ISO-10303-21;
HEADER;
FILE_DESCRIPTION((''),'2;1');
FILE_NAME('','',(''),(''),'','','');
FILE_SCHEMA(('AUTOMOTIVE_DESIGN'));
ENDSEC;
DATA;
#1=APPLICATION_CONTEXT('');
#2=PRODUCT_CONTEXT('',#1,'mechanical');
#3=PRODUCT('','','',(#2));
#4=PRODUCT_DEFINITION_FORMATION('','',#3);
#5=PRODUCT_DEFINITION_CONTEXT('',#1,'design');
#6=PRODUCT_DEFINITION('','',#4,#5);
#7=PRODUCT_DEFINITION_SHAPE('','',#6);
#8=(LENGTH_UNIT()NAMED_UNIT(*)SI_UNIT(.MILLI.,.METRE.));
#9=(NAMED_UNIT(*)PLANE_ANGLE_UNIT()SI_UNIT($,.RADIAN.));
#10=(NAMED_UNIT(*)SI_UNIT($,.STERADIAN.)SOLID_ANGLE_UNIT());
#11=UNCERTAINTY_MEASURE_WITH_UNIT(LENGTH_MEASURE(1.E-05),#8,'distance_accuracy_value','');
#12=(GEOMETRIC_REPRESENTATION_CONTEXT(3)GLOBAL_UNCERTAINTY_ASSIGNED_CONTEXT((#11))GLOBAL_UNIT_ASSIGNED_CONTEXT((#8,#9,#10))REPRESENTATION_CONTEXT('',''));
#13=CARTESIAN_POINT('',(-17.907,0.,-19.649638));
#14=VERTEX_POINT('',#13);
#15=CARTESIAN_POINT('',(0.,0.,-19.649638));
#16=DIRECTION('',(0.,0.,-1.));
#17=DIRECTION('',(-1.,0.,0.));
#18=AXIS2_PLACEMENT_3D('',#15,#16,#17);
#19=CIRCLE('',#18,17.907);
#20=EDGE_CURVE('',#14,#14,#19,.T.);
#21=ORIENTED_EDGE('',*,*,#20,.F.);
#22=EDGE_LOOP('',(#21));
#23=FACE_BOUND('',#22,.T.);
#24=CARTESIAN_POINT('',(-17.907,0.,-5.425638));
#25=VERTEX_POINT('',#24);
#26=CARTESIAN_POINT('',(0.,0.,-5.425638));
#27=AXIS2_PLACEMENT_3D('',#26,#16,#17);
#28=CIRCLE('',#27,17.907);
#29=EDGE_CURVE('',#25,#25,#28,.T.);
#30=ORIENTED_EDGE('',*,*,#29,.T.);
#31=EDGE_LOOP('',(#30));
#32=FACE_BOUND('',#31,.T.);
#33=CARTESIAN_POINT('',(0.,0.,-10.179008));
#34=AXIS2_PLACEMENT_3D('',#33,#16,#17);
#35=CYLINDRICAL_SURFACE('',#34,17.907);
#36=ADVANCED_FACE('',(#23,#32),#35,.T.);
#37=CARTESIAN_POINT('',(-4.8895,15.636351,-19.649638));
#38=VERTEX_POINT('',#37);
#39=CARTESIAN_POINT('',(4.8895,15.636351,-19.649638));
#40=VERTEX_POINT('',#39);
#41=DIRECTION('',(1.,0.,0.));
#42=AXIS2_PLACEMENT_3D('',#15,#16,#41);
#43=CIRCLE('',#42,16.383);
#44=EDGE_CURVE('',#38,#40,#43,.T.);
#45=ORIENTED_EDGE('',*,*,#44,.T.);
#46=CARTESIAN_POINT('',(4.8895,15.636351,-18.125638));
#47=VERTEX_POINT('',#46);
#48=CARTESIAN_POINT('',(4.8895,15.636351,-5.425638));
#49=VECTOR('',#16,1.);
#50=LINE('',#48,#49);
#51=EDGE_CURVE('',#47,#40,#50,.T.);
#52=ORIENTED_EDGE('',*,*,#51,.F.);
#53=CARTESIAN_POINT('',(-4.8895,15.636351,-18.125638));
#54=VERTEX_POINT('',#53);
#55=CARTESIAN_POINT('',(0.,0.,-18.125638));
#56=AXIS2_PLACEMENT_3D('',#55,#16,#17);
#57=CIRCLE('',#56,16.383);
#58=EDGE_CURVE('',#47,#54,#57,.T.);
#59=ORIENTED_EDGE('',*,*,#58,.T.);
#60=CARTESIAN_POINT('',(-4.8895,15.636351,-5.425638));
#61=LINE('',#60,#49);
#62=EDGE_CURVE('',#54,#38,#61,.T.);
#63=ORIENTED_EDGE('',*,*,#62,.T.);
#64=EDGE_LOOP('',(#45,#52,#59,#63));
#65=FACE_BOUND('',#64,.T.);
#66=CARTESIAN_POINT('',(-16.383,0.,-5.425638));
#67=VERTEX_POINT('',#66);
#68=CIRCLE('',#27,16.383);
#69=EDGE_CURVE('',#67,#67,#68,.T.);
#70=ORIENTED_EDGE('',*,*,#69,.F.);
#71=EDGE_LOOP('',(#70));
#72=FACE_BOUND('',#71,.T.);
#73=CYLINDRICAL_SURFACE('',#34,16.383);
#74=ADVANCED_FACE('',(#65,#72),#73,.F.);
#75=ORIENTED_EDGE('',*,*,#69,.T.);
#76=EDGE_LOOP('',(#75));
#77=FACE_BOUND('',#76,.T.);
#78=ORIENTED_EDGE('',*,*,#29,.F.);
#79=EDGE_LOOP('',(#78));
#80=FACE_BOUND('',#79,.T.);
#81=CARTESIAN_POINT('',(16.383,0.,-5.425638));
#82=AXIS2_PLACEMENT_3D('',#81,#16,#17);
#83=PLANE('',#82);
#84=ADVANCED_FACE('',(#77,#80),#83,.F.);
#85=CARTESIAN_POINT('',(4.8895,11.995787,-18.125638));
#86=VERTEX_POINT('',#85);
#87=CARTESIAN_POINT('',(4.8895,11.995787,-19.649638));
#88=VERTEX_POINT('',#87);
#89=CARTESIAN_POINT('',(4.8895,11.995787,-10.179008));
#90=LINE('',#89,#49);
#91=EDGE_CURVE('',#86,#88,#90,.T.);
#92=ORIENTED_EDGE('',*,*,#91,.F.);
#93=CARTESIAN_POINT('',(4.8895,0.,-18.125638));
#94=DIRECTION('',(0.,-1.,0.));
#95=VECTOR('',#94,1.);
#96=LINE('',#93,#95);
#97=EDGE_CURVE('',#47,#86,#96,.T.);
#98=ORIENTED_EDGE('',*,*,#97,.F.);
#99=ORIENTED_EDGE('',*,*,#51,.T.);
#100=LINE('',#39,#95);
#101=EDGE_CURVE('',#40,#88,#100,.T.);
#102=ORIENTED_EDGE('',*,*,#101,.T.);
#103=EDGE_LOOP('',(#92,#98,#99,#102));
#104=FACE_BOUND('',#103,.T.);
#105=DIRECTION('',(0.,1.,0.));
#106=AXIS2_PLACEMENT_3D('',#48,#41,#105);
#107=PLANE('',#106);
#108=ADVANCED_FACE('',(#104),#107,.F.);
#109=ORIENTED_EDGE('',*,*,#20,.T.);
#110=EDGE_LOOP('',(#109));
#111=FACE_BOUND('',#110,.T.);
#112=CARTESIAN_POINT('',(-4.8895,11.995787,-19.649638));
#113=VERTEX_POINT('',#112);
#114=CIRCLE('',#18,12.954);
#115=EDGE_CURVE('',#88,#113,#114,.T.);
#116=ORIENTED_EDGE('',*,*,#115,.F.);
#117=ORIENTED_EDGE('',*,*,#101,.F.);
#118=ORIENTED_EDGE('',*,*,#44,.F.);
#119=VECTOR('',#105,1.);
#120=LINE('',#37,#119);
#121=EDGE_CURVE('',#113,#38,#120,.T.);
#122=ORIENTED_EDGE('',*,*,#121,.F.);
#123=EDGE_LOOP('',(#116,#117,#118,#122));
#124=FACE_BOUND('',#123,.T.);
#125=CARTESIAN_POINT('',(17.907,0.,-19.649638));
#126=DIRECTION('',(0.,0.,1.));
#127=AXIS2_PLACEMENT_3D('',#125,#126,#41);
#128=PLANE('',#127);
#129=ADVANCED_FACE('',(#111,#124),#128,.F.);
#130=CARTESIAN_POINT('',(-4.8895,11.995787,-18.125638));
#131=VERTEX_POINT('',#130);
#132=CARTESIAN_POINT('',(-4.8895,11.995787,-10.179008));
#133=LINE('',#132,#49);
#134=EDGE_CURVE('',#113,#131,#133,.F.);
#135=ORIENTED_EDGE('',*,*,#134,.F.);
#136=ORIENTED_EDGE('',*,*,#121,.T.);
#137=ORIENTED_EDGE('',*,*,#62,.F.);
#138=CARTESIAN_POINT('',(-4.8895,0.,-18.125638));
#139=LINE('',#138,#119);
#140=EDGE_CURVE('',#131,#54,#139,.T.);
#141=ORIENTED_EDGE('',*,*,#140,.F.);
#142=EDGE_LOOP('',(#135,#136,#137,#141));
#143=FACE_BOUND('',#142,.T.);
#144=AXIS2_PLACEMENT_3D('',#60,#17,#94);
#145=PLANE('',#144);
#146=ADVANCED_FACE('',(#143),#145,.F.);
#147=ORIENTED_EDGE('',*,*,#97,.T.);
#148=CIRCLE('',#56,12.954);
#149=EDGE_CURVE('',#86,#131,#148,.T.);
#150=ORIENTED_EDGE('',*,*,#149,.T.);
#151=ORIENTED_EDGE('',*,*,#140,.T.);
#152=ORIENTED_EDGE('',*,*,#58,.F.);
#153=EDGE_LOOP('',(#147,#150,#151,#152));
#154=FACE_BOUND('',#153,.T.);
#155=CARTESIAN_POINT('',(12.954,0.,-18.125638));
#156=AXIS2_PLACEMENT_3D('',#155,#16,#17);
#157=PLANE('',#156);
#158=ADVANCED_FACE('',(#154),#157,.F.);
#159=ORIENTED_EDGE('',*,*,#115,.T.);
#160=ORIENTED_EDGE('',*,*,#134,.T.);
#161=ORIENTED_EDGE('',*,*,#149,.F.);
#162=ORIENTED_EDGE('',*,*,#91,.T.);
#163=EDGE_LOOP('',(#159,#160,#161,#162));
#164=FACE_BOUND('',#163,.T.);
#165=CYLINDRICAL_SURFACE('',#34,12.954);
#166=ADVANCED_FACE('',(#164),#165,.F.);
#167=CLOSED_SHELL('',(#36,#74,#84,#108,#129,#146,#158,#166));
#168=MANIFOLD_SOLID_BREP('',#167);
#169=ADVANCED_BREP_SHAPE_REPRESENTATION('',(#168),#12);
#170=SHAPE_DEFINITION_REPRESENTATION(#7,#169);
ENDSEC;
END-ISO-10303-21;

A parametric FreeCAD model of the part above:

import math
import FreeCAD as App
import Part
import Sketcher

V = App.Vector
Q = App.Units.Quantity

doc = App.newDocument("Part")
body = doc.addObject("PartDesign::Body", "Body")

sketch1 = doc.addObject("Sketcher::SketchObject", "Sketch")
body.addObject(sketch1)
sketch1.AttachmentSupport = (doc.XZ_Plane, [""])
sketch1.MapMode = "FlatFace"
sketch1.addGeometry([
    Part.LineSegment(V(16.4, -5.4, 0), V(17.9, -5.4, 0)),
    Part.LineSegment(V(17.9, -5.4, 0), V(17.9, -19.6, 0)),
    Part.LineSegment(V(17.9, -19.6, 0), V(13, -19.6, 0)),
    Part.LineSegment(V(13, -19.6, 0), V(13, -18.1, 0)),
    Part.LineSegment(V(13, -18.1, 0), V(16.4, -18.1, 0)),
    Part.LineSegment(V(16.4, -18.1, 0), V(16.4, -5.4, 0)),
], False)
sketch1.addConstraint([
    Sketcher.Constraint("Coincident", 0, 2, 1, 1),
    Sketcher.Constraint("Coincident", 1, 2, 2, 1),
    Sketcher.Constraint("Coincident", 2, 2, 3, 1),
    Sketcher.Constraint("Coincident", 3, 2, 4, 1),
    Sketcher.Constraint("Coincident", 4, 2, 5, 1),
    Sketcher.Constraint("Coincident", 5, 2, 0, 1),
    Sketcher.Constraint("Horizontal", 0),
    Sketcher.Constraint("Vertical", 1),
    Sketcher.Constraint("Horizontal", 2),
    Sketcher.Constraint("Vertical", 3),
    Sketcher.Constraint("Horizontal", 4),
    Sketcher.Constraint("Vertical", 5),
    Sketcher.Constraint("Equal", 0, 3),
    Sketcher.Constraint("DistanceY", 5, 1, 5, 2, Q("0.5 in")),
    Sketcher.Constraint("DistanceX", 0, 1, 0, 2, Q("0.06 in")),
    Sketcher.Constraint("DistanceX", 2, 2, 2, 1, Q("0.195 in")),
    Sketcher.Constraint("DistanceX", -1, 1, 2, 2, Q("0.51 in")),
    Sketcher.Constraint("DistanceY", 0, 2, -1, 1, Q("5.425638 mm")),
])
revolution = doc.addObject("PartDesign::Revolution", "Revolution")
body.addObject(revolution)
revolution.Profile = sketch1
revolution.ReferenceAxis = (sketch1, ["V_Axis"])
revolution.Angle = 360

sketch2 = doc.addObject("Sketcher::SketchObject", "Sketch001")
body.addObject(sketch2)
sketch2.AttachmentSupport = (doc.XY_Plane, [""])
sketch2.MapMode = "FlatFace"
sketch2.AttachmentOffset = App.Placement(V(0, 0, -19.649638), App.Rotation())
sketch2.addGeometry([
    Part.LineSegment(V(5, 16, 0), V(5, 11, 0)),
    Part.LineSegment(V(5, 11, 0), V(-5, 11, 0)),
    Part.LineSegment(V(-5, 11, 0), V(-5, 16, 0)),
    Part.ArcOfCircle(Part.Circle(V(0, 0, 0), V(0, 0, 1), 16), math.radians(73), math.radians(107)),
], False)
sketch2.addConstraint([
    Sketcher.Constraint("Coincident", 0, 2, 1, 1),
    Sketcher.Constraint("Coincident", 1, 2, 2, 1),
    Sketcher.Constraint("Coincident", 2, 2, 3, 2),
    Sketcher.Constraint("Coincident", 3, 1, 0, 1),
    Sketcher.Constraint("Vertical", 0),
    Sketcher.Constraint("Horizontal", 1),
    Sketcher.Constraint("Vertical", 2),
    Sketcher.Constraint("Coincident", 3, 3, -1, 1),
    Sketcher.Constraint("Horizontal", 2, 2, 3, 1),
    Sketcher.Constraint("DistanceY", 0, 2, 0, 1, Q("0.2 in")),
    Sketcher.Constraint("Radius", 3, Q("0.645 in")),
    Sketcher.Constraint("DistanceX", 1, 2, 1, 1, Q("0.385 in")),
])
pocket1 = doc.addObject("PartDesign::Pocket", "Pocket")
body.addObject(pocket1)
pocket1.Profile = sketch2
pocket1.Type = "ThroughAll"
pocket1.Reversed = True

doc.recompute()
